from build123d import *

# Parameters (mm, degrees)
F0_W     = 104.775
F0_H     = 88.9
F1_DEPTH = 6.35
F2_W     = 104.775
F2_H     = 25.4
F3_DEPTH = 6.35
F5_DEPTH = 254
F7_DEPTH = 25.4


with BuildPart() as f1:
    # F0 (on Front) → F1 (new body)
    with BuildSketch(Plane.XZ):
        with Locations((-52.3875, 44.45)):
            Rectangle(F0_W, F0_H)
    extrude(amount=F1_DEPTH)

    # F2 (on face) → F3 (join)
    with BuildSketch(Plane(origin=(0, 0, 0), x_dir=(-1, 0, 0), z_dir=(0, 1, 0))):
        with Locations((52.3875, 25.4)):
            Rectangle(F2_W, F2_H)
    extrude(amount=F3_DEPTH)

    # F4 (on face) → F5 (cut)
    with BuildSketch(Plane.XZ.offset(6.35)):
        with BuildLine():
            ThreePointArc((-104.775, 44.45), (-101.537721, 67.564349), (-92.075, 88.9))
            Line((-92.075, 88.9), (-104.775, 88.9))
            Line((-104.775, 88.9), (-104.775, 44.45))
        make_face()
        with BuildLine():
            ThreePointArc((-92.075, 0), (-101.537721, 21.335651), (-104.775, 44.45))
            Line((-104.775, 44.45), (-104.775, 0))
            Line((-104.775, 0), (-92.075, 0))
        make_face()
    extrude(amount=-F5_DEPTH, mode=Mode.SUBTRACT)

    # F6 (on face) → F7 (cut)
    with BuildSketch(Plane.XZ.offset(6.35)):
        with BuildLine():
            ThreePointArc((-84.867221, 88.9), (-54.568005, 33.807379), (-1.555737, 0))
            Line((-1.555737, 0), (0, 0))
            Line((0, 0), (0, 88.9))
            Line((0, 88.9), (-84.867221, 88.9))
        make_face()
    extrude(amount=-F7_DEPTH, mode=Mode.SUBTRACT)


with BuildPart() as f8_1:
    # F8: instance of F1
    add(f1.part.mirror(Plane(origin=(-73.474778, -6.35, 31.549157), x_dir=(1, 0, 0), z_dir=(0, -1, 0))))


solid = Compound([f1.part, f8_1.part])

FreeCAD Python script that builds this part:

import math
import FreeCAD as App
import Part
import Sketcher

V = App.Vector
Q = App.Units.Quantity


def add_polygon(sketch, points):
    """Adds a closed chain of lines whose ends are joined by coincident constraints."""
    first, n = sketch.GeometryCount, len(points)
    for a, b in zip(points, points[1:] + points[:1]):
        sketch.addGeometry(Part.LineSegment(App.Vector(*a, 0), App.Vector(*b, 0)), False)
    for i in range(n):
        sketch.addConstraint(Sketcher.Constraint("Coincident", first + i, 2, first + (i + 1) % n, 1))

doc = App.newDocument("Part")
body = doc.addObject("PartDesign::Body", "Body")

sketch1 = body.newObject("Sketcher::SketchObject", "Sketch")
sketch1.AttachmentSupport = (doc.getObject("XZ_Plane"), [""])
sketch1.MapMode = "FlatFace"
add_polygon(sketch1, [(-105, 89), (-105, 0), (0, 0), (0, 89)])
sketch1.addConstraint(Sketcher.Constraint("Vertical", 0))
sketch1.addConstraint(Sketcher.Constraint("Horizontal", 1))
sketch1.addConstraint(Sketcher.Constraint("Vertical", 2))
sketch1.addConstraint(Sketcher.Constraint("Horizontal", 3))
sketch1.addConstraint(Sketcher.Constraint("Coincident", 1, 2, -1, 1))
sketch1.addConstraint(Sketcher.Constraint("DistanceY", 0, 2, 0, 1, Q("3.5 in")))
sketch1.addConstraint(Sketcher.Constraint("DistanceX", 1, 1, 1, 2, Q("4.125 in")))
pad1 = body.newObject("PartDesign::Pad", "Pad")
pad1.Profile = sketch1
pad1.Length = Q("0.25 in")

sketch2 = body.newObject("Sketcher::SketchObject", "Sketch001")
sketch2.AttachmentSupport = (doc.getObject("XZ_Plane"), [""])
sketch2.MapMode = "FlatFace"
add_polygon(sketch2, [(0, 38), (0, 13), (-105, 13), (-105, 38)])
sketch2.addConstraint(Sketcher.Constraint("Vertical", 0))
sketch2.addConstraint(Sketcher.Constraint("Horizontal", 1))
sketch2.addConstraint(Sketcher.Constraint("Vertical", 2))
sketch2.addConstraint(Sketcher.Constraint("Horizontal", 3))
sketch2.addConstraint(Sketcher.Constraint("PointOnObject", 0, 2, -2))
sketch2.addConstraint(Sketcher.Constraint("DistanceY", 0, 2, 0, 1, Q("1 in")))
sketch2.addConstraint(Sketcher.Constraint("DistanceY", -1, 1, 0, 2, Q("0.5 in")))
sketch2.addConstraint(Sketcher.Constraint("DistanceX", 1, 2, 1, 1, Q("4.125 in")))
pad2 = body.newObject("PartDesign::Pad", "Pad001")
pad2.Profile = sketch2
pad2.Length = Q("0.25 in")
pad2.Reversed = True

sketch3 = body.newObject("Sketcher::SketchObject", "Sketch002")
sketch3.AttachmentSupport = (doc.getObject("XZ_Plane"), [""])
sketch3.MapMode = "FlatFace"
sketch3.AttachmentOffset = App.Placement(V(0, 0, 0.25 * 25.4), App.Rotation())
sketch3.addGeometry(Part.ArcOfCircle(Part.Circle(V(-21, 44, 0), V(0, 0, 1), 84), math.radians(148), math.radians(180)), False)
sketch3.addGeometry(Part.LineSegment(V(-92, 89, 0), V(-105, 89, 0)), False)
sketch3.addGeometry(Part.LineSegment(V(-105, 89, 0), V(-105, 44, 0)), False)
sketch3.addGeometry(Part.ArcOfCircle(Part.Circle(V(-21, 44, 0), V(0, 0, 1), 84), math.radians(-180), math.radians(-148)), False)
sketch3.addGeometry(Part.LineSegment(V(-105, 44, 0), V(-105, 0, 0)), False)
sketch3.addGeometry(Part.LineSegment(V(-105, 0, 0), V(-92, 0, 0)), False)
sketch3.addConstraint(Sketcher.Constraint("Coincident", 0, 1, 1, 1))
sketch3.addConstraint(Sketcher.Constraint("Coincident", 1, 2, 2, 1))
sketch3.addConstraint(Sketcher.Constraint("Tangent", 2, 2, 0, 2))
sketch3.addConstraint(Sketcher.Constraint("Tangent", 3, 1, 4, 1))
sketch3.addConstraint(Sketcher.Constraint("Coincident", 4, 2, 5, 1))
sketch3.addConstraint(Sketcher.Constraint("Coincident", 5, 2, 3, 2))
sketch3.addConstraint(Sketcher.Constraint("Horizontal", 1))
sketch3.addConstraint(Sketcher.Constraint("Vertical", 2))
sketch3.addConstraint(Sketcher.Constraint("Vertical", 4))
sketch3.addConstraint(Sketcher.Constraint("Horizontal", 5))
sketch3.addConstraint(Sketcher.Constraint("Coincident", 3, 3, 0, 3))
sketch3.addConstraint(Sketcher.Constraint("Equal", 0, 3))
sketch3.addConstraint(Sketcher.Constraint("PointOnObject", 4, 2, -1))
sketch3.addConstraint(Sketcher.Constraint("Vertical", 0, 1, 5, 2))
sketch3.addConstraint(Sketcher.Constraint("DistanceX", 1, 2, 1, 1, Q("0.5 in")))
sketch3.addConstraint(Sketcher.Constraint("Radius", 0, Q("3.3125001 in")))
sketch3.addConstraint(Sketcher.Constraint("DistanceX", 0, 3, -1, 1, Q("0.8124999 in")))
pocket1 = body.newObject("PartDesign::Pocket", "Pocket")
pocket1.Profile = sketch3
pocket1.Length = Q("10 in")

sketch4 = body.newObject("Sketcher::SketchObject", "Sketch003")
sketch4.AttachmentSupport = (doc.getObject("XZ_Plane"), [""])
sketch4.MapMode = "FlatFace"
sketch4.AttachmentOffset = App.Placement(V(0, 0, 0.25 * 25.4), App.Rotation())
sketch4.addGeometry(Part.ArcOfCircle(Part.Circle(V(38.1, 120.6, 0), V(0, 0, 1), 127), math.radians(-166), math.radians(-108)), False)
sketch4.addGeometry(Part.LineSegment(V(-1.6, 0, 0), V(0, 0, 0)), False)
sketch4.addGeometry(Part.LineSegment(V(0, 0, 0), V(0, 88.9, 0)), False)
sketch4.addGeometry(Part.LineSegment(V(0, 88.9, 0), V(-84.9, 88.9, 0)), False)
sketch4.addConstraint(Sketcher.Constraint("Coincident", 0, 2, 1, 1))
sketch4.addConstraint(Sketcher.Constraint("Coincident", 1, 2, 2, 1))
sketch4.addConstraint(Sketcher.Constraint("Coincident", 2, 2, 3, 1))
sketch4.addConstraint(Sketcher.Constraint("Coincident", 3, 2, 0, 1))
sketch4.addConstraint(Sketcher.Constraint("Horizontal", 1))
sketch4.addConstraint(Sketcher.Constraint("Vertical", 2))
sketch4.addConstraint(Sketcher.Constraint("Horizontal", 3))
sketch4.addConstraint(Sketcher.Constraint("Coincident", 1, 2, -1, 1))
sketch4.addConstraint(Sketcher.Constraint("Radius", 0, Q("5 in")))
sketch4.addConstraint(Sketcher.Constraint("DistanceY", 2, 1, 2, 2, Q("3.5 in")))
sketch4.addConstraint(Sketcher.Constraint("DistanceX", -1, 1, 0, 3, Q("1.5 in")))
sketch4.addConstraint(Sketcher.Constraint("DistanceY", -1, 1, 0, 3, Q("4.75 in")))
pocket2 = body.newObject("PartDesign::Pocket", "Pocket001")
pocket2.Profile = sketch4
pocket2.Length = Q("1 in")
body2 = doc.addObject("PartDesign::Body", "Body001")
doc.recompute()

mirroring = doc.addObject("Part::Mirroring", "Mirroring")
mirroring.Source = body
mirroring.Base = V(-73.474778, -6.35, 31.549157)
mirroring.Normal = V(0, -1, 0)
body2.BaseFeature = mirroring
doc.recompute()
mirroring.Visibility = False

doc.recompute()
